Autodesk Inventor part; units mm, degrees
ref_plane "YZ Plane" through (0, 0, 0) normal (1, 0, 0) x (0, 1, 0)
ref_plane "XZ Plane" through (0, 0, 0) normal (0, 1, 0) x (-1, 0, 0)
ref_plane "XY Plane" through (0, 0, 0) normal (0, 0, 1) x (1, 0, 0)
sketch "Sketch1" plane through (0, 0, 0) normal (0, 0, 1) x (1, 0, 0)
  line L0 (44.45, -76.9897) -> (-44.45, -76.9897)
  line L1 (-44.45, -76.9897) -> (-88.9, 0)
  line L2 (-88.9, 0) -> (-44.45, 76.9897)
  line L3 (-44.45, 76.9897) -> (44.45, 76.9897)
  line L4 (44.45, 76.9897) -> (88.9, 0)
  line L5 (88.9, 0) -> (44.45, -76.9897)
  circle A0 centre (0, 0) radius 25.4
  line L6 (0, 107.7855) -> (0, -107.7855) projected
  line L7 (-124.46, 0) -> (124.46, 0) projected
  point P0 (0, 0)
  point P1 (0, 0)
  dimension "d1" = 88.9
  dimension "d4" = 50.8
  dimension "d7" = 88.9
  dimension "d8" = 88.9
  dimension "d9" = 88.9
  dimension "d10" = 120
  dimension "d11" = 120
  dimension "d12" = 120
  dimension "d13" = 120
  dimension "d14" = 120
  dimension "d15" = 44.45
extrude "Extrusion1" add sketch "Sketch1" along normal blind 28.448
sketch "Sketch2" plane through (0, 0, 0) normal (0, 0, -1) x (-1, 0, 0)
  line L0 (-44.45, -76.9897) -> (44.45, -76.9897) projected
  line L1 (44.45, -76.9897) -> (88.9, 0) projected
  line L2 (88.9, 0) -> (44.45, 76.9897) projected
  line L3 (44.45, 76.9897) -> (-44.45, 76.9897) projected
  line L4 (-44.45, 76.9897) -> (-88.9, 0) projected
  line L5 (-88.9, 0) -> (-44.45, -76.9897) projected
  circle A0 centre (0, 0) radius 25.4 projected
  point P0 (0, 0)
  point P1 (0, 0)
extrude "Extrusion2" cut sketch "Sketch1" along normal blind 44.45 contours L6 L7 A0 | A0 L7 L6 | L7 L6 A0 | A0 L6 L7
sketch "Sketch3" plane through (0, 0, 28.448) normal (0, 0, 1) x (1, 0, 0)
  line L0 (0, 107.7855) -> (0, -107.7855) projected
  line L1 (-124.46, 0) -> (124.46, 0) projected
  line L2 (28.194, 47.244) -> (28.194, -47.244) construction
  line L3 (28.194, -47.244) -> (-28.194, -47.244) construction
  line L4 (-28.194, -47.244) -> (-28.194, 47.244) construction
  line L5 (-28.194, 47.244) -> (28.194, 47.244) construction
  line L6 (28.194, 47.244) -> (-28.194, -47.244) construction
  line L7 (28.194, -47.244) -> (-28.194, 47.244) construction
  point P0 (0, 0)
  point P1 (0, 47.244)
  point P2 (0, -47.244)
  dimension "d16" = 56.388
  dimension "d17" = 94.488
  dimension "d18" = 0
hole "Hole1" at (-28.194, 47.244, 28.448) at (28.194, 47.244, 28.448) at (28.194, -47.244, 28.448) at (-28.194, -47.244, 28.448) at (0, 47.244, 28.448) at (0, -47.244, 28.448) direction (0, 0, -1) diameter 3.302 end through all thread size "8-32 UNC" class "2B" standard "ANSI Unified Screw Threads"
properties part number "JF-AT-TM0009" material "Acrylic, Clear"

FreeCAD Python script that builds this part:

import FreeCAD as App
import Part
import Sketcher

V = App.Vector
Q = App.Units.Quantity


def add_polygon(sketch, points):
    """Adds a closed chain of lines whose ends are joined by coincident constraints."""
    first, n = sketch.GeometryCount, len(points)
    for a, b in zip(points, points[1:] + points[:1]):
        sketch.addGeometry(Part.LineSegment(App.Vector(*a, 0), App.Vector(*b, 0)), False)
    for i in range(n):
        sketch.addConstraint(Sketcher.Constraint("Coincident", first + i, 2, first + (i + 1) % n, 1))

doc = App.newDocument("Part")
params = doc.addObject("Spreadsheet::Sheet", "Params")
for row, (alias, value) in enumerate([
    ("sketch1_width", "3.5 in"),
    ("sketch1_length", "3.5 in"),
    ("pad1_length", "1.12 in"),
    ("sketch2_diameter", "2 in"),
    ("pocket1_length", "1.75 in"),
    ("sketch3_diameter", "0.13 in"),
    ("hole_diameter", "0.13 in"),
], start=1):
    params.set(f"A{row}", alias)
    params.set(f"B{row}", "=" + value)
    params.setAlias(f"B{row}", alias)

body = doc.addObject("PartDesign::Body", "Body")

# Sketch on XY plane
sketch1 = body.newObject("Sketcher::SketchObject", "Sketch")
sketch1.AttachmentSupport = (doc.getObject("XY_Plane"), [""])
sketch1.MapMode = "FlatFace"
add_polygon(sketch1, [(44.45, -76.9897), (88.9, 0), (44.45, 76.9897), (-44.45, 76.9897), (-88.9, 0), (-44.45, -76.9897)])  # lines 0-5
sketch1.addConstraint([
    Sketcher.Constraint("Horizontal", 2),
    Sketcher.Constraint("Horizontal", 5),
    Sketcher.Constraint("Symmetric", 0, 2, 3, 2, -1, 1),
    Sketcher.Constraint("Symmetric", 1, 2, 4, 2, -1, 1),
    Sketcher.Constraint("PointOnObject", 0, 2, -1),
    Sketcher.Constraint("Parallel", 0, 3),
    Sketcher.Constraint("Vertical", 2, 2, 4, 2),
    Sketcher.Constraint("DistanceX", 2, 2, 2, 1, Q("3.5 in")),
    Sketcher.Constraint("Angle", 1, Q("120 deg")),
    Sketcher.Constraint("Distance", 0, Q("3.5 in")),
])
sketch1.setExpression("Constraints[13]", "Params.sketch1_width")
sketch1.setExpression("Constraints[15]", "Params.sketch1_length")
pad1 = body.newObject("PartDesign::Pad", "Pad")
pad1.Profile = sketch1
pad1.setExpression("Length", "Params.pad1_length")

# Sketch on XY plane
sketch2 = body.newObject("Sketcher::SketchObject", "Sketch001")
sketch2.AttachmentSupport = (doc.getObject("XY_Plane"), [""])
sketch2.MapMode = "FlatFace"
sketch2.addGeometry(Part.Circle(V(0, 0, 0), V(0, 0, 1), 25.4), False)
sketch2.addConstraint([
    Sketcher.Constraint("Coincident", 0, 3, -1, 1),
    Sketcher.Constraint("Diameter", 0, Q("2 in")),
])
sketch2.setExpression("Constraints[1]", "Params.sketch2_diameter")
pocket1 = body.newObject("PartDesign::Pocket", "Pocket")
pocket1.Profile = sketch2
pocket1.setExpression("Length", "Params.pocket1_length")
pocket1.Reversed = True

# Sketch on XY plane
sketch3 = body.newObject("Sketcher::SketchObject", "Sketch002")
sketch3.AttachmentSupport = (doc.getObject("XY_Plane"), [""])
sketch3.MapMode = "FlatFace"
sketch3.AttachmentOffset = App.Placement(V(0, 0, 1.12 * 25.4), App.Rotation())
sketch3.addGeometry([
    Part.Circle(V(-28.194, 47.244, 0), V(0, 0, 1), 1.651),  # 0
    Part.Circle(V(28.194, 47.244, 0), V(0, 0, 1), 1.651),  # 1
    Part.Circle(V(28.194, -47.244, 0), V(0, 0, 1), 1.651),  # 2
    Part.Circle(V(-28.194, -47.244, 0), V(0, 0, 1), 1.651),  # 3
    Part.Circle(V(0, 47.244, 0), V(0, 0, 1), 1.651),  # 4
    Part.Circle(V(0, -47.244, 0), V(0, 0, 1), 1.651),  # 5
], False)
sketch3.addConstraint([
    Sketcher.Constraint("Equal", 0, 1),
    Sketcher.Constraint("Equal", 1, 2),
    Sketcher.Constraint("Equal", 2, 3),
    Sketcher.Constraint("Equal", 3, 4),
    Sketcher.Constraint("Equal", 4, 5),
    Sketcher.Constraint("Symmetric", 0, 3, 2, 3, -1, 1),
    Sketcher.Constraint("Symmetric", 1, 3, 3, 3, -1, 1),
    Sketcher.Constraint("Symmetric", 4, 3, 5, 3, -1, 1),
    Sketcher.Constraint("Symmetric", 0, 3, 1, 3, -2),
    Sketcher.Constraint("PointOnObject", 4, 3, -2),
    Sketcher.Constraint("Horizontal", 1, 3, 4, 3),
    Sketcher.Constraint("Diameter", 0, Q("0.13 in")),
    Sketcher.Constraint("DistanceX", 0, 3, -1, 1, Q("1.11 in")),
    Sketcher.Constraint("DistanceY", -1, 1, 0, 3, Q("1.86 in")),
])
sketch3.setExpression("Constraints[11]", "Params.sketch3_diameter")
doc.recompute()
hole = body.newObject("PartDesign::Hole", "Hole")
hole.Profile = sketch3
hole.ThreadType = "None"
hole.setExpression("Diameter", "Params.hole_diameter")
hole.DepthType = "ThroughAll"

doc.recompute()
